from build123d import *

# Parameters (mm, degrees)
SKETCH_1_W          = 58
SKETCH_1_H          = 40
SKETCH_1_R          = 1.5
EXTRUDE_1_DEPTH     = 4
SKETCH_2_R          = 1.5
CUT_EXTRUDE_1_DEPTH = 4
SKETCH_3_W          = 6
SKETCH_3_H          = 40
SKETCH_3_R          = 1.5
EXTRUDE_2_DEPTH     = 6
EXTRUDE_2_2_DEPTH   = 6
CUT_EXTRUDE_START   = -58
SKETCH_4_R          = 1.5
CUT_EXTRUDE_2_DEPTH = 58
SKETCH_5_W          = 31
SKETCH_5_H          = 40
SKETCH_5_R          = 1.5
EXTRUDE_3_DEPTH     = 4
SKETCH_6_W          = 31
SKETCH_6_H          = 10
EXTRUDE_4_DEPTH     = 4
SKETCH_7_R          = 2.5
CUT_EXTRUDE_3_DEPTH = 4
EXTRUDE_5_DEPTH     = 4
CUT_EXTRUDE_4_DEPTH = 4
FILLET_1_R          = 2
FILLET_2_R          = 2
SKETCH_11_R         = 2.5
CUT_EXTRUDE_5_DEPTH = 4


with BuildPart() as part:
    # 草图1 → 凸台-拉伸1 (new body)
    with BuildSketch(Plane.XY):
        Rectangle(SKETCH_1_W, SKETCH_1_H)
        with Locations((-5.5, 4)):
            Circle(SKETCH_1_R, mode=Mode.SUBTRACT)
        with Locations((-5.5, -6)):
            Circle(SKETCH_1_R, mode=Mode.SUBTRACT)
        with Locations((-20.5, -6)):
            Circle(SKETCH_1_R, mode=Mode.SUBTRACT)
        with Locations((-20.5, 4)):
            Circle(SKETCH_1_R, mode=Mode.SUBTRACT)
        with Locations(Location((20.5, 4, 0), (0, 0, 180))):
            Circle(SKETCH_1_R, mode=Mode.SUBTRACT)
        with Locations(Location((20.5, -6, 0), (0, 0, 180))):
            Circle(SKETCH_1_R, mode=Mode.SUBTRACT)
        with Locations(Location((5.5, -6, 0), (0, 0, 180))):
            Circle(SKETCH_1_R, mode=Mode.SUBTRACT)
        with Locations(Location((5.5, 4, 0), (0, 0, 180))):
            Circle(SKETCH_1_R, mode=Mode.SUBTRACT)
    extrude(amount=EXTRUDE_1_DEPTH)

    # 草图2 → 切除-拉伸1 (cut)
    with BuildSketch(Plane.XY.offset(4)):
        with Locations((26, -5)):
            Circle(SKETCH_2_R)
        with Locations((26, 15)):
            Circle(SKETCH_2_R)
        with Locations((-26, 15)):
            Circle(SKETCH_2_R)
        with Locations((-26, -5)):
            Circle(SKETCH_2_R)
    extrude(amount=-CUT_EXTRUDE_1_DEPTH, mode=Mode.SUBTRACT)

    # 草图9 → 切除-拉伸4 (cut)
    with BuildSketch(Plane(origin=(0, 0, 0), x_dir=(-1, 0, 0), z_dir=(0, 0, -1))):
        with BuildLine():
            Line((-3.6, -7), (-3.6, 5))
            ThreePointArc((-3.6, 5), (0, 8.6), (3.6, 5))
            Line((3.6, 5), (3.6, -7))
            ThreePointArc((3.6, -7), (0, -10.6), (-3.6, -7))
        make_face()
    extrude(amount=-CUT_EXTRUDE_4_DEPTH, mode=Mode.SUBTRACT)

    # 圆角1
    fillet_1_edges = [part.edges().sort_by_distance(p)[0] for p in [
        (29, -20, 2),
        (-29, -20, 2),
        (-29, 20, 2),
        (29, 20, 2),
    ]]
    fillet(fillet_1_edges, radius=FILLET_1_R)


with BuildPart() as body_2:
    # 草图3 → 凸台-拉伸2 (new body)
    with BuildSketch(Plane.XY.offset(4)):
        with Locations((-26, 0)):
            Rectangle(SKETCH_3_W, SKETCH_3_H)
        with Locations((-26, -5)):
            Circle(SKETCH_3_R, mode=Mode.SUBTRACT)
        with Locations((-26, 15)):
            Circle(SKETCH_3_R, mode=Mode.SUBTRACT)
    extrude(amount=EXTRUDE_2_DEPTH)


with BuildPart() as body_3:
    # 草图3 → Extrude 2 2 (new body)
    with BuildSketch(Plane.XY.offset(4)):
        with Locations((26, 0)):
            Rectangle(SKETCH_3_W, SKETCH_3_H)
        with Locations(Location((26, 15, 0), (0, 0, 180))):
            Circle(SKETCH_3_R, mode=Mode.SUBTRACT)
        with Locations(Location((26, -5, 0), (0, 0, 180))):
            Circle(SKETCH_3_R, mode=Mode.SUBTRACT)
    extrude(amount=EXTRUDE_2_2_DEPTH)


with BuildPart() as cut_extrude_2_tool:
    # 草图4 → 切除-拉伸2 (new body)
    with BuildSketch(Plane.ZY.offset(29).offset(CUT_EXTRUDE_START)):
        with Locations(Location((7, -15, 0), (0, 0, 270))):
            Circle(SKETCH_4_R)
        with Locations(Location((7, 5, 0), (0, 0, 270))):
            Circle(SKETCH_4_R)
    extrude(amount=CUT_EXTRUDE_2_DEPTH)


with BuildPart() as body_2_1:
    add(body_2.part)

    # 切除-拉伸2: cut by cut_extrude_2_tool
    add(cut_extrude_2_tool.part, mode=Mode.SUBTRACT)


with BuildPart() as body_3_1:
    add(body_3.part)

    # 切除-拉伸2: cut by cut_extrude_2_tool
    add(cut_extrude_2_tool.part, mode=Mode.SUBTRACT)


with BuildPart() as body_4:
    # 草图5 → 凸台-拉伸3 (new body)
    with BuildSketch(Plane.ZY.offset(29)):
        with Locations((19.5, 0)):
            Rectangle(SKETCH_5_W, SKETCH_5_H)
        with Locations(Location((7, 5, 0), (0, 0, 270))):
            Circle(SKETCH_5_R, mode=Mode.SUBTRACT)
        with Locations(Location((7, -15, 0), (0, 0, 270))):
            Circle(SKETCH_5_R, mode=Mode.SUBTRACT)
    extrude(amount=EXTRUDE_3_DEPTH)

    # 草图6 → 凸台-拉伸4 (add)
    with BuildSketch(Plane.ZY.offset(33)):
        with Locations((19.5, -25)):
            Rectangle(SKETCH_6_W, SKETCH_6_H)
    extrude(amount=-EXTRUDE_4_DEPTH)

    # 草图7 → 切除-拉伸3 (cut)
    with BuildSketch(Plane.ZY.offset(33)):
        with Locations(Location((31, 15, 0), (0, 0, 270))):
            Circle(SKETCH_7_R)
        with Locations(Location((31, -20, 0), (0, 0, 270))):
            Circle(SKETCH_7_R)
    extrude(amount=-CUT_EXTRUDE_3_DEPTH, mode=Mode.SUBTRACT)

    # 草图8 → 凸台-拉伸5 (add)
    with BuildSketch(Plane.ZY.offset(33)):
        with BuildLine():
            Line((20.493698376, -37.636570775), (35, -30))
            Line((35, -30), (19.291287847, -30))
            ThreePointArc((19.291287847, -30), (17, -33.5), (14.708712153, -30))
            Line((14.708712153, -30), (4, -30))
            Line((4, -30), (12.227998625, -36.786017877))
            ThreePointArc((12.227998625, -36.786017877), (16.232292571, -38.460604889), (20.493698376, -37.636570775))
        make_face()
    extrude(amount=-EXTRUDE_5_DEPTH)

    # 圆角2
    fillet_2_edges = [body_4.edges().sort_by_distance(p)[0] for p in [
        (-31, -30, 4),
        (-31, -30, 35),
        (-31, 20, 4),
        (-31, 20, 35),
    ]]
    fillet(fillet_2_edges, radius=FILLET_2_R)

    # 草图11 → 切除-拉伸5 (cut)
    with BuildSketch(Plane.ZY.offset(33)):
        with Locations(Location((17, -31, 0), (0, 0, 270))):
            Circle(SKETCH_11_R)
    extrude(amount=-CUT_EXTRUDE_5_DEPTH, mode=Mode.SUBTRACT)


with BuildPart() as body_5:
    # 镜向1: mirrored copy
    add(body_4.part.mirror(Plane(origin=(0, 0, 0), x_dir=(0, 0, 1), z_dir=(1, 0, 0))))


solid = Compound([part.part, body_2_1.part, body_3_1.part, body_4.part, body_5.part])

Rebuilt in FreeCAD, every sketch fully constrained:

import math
import FreeCAD as App
import Part
import Sketcher


def edges_at(feature, points):
    """Names of the edges that pass closest to the given points."""
    edges = feature.Shape.Edges
    near = lambda p: min(range(len(edges)), key=lambda i: edges[i].distToShape(Part.Vertex(*p))[0])
    return sorted({f"Edge{near(p) + 1}" for p in points})


def add_polygon(sketch, points):
    """Adds a closed chain of lines whose ends are joined by coincident constraints."""
    first, n = sketch.GeometryCount, len(points)
    for a, b in zip(points, points[1:] + points[:1]):
        sketch.addGeometry(Part.LineSegment(App.Vector(*a, 0), App.Vector(*b, 0)), False)
    for i in range(n):
        sketch.addConstraint(Sketcher.Constraint("Coincident", first + i, 2, first + (i + 1) % n, 1))

doc = App.newDocument("Part")
body = doc.addObject("PartDesign::Body", "Body")

# Sketch on XY plane
sketch1 = body.newObject("Sketcher::SketchObject", "Sketch")
sketch1.AttachmentSupport = (doc.getObject("XY_Plane"), [""])
sketch1.MapMode = "FlatFace"
add_polygon(sketch1, [(-29, 20), (-29, -20), (29, -20), (29, 20)])  # lines 0-3
sketch1.addGeometry(Part.Circle(App.Vector(-20.5, -6, 0), App.Vector(0, 0, 1), 1.5), False)  # 4
sketch1.addGeometry(Part.Circle(App.Vector(-5.5, -6, 0), App.Vector(0, 0, 1), 1.5), False)  # 5
sketch1.addGeometry(Part.Circle(App.Vector(5.5, -6, 0), App.Vector(0, 0, 1), 1.5), False)  # 6
sketch1.addGeometry(Part.Circle(App.Vector(20.5, -6, 0), App.Vector(0, 0, 1), 1.5), False)  # 7
sketch1.addGeometry(Part.Circle(App.Vector(-20.5, 4, 0), App.Vector(0, 0, 1), 1.5), False)  # 8
sketch1.addGeometry(Part.Circle(App.Vector(-5.5, 4, 0), App.Vector(0, 0, 1), 1.5), False)  # 9
sketch1.addGeometry(Part.Circle(App.Vector(5.5, 4, 0), App.Vector(0, 0, 1), 1.5), False)  # 10
sketch1.addGeometry(Part.Circle(App.Vector(20.5, 4, 0), App.Vector(0, 0, 1), 1.5), False)  # 11
sketch1.addConstraint([
    Sketcher.Constraint("Vertical", 0),
    Sketcher.Constraint("Horizontal", 1),
    Sketcher.Constraint("Vertical", 2),
    Sketcher.Constraint("Horizontal", 3),
    Sketcher.Constraint("Equal", 4, 5),
    Sketcher.Constraint("Equal", 5, 6),
    Sketcher.Constraint("Equal", 6, 7),
    Sketcher.Constraint("Equal", 7, 8),
    Sketcher.Constraint("Equal", 8, 9),
    Sketcher.Constraint("Equal", 9, 10),
    Sketcher.Constraint("Equal", 10, 11),
    Sketcher.Constraint("Symmetric", 0, 2, 2, 2, -1, 1),
    Sketcher.Constraint("Symmetric", 5, 3, 6, 3, -2),
    Sketcher.Constraint("Symmetric", 4, 3, 7, 3, -2),
    Sketcher.Constraint("Symmetric", 9, 3, 10, 3, -2),
    Sketcher.Constraint("Symmetric", 8, 3, 11, 3, -2),
    Sketcher.Constraint("Horizontal", 4, 3, 5, 3),
    Sketcher.Constraint("Horizontal", 8, 3, 9, 3),
    Sketcher.Constraint("Vertical", 4, 3, 8, 3),
    Sketcher.Constraint("Vertical", 5, 3, 9, 3),
    Sketcher.Constraint("Diameter", 4, 3.0),
    Sketcher.Constraint("DistanceX", 1, 1, 1, 2, 58.0),
    Sketcher.Constraint("DistanceY", 0, 2, 0, 1, 40.0),
    Sketcher.Constraint("DistanceY", 4, 3, -1, 1, 6.0),
    Sketcher.Constraint("DistanceY", -1, 1, 8, 3, 4.0),
    Sketcher.Constraint("DistanceX", 4, 3, 5, 3, 15.0),
    Sketcher.Constraint("DistanceX", 5, 3, 6, 3, 11.0),
])
pad1 = body.newObject("PartDesign::Pad", "Pad")
pad1.Profile = sketch1
pad1.Length = 4

# Sketch on XY plane
sketch2 = body.newObject("Sketcher::SketchObject", "Sketch001")
sketch2.AttachmentSupport = (doc.getObject("XY_Plane"), [""])
sketch2.MapMode = "FlatFace"
sketch2.AttachmentOffset = App.Placement(App.Vector(0, 0, 4), App.Rotation())
sketch2.addGeometry([
    Part.Circle(App.Vector(26, -5, 0), App.Vector(0, 0, 1), 1.5),
    Part.Circle(App.Vector(26, 15, 0), App.Vector(0, 0, 1), 1.5),
    Part.Circle(App.Vector(-26, 15, 0), App.Vector(0, 0, 1), 1.5),
    Part.Circle(App.Vector(-26, -5, 0), App.Vector(0, 0, 1), 1.5),
], False)
sketch2.addConstraint([
    Sketcher.Constraint("Equal", 0, 1),
    Sketcher.Constraint("Equal", 1, 2),
    Sketcher.Constraint("Equal", 2, 3),
    Sketcher.Constraint("Symmetric", 1, 3, 2, 3, -2),
    Sketcher.Constraint("Symmetric", 0, 3, 3, 3, -2),
    Sketcher.Constraint("Vertical", 0, 3, 1, 3),
    Sketcher.Constraint("Diameter", 0, 3.0),
    Sketcher.Constraint("DistanceX", -1, 1, 0, 3, 26.0),
    Sketcher.Constraint("DistanceY", 0, 3, -1, 1, 5.0),
    Sketcher.Constraint("DistanceY", -1, 1, 1, 3, 15.0),
])
pocket1 = body.newObject("PartDesign::Pocket", "Pocket")
pocket1.Profile = sketch2
pocket1.Length = 4

# Sketch on XY plane
sketch3 = body.newObject("Sketcher::SketchObject", "Sketch002")
sketch3.AttachmentSupport = (doc.getObject("XY_Plane"), [""])
sketch3.MapMode = "FlatFace"
sketch3.addGeometry([
    Part.LineSegment(App.Vector(3.6, 5, 0), App.Vector(3.6, -7, 0)),
    Part.ArcOfCircle(Part.Circle(App.Vector(0, -7, 0), App.Vector(0, 0, 1), 3.6), math.radians(180), math.radians(360)),
    Part.LineSegment(App.Vector(-3.6, -7, 0), App.Vector(-3.6, 5, 0)),
    Part.ArcOfCircle(Part.Circle(App.Vector(0, 5, 0), App.Vector(0, 0, 1), 3.6), math.radians(0), math.radians(180)),
], False)
sketch3.addConstraint([
    Sketcher.Constraint("Tangent", 0, 2, 1, 2),
    Sketcher.Constraint("Tangent", 1, 1, 2, 1),
    Sketcher.Constraint("Tangent", 2, 2, 3, 2),
    Sketcher.Constraint("Tangent", 3, 1, 0, 1),
    Sketcher.Constraint("Vertical", 0),
    Sketcher.Constraint("Vertical", 2),
    Sketcher.Constraint("PointOnObject", 1, 3, -2),
    Sketcher.Constraint("Radius", 1, 3.6),
    Sketcher.Constraint("DistanceY", 0, 2, 0, 1, 12.0),
    Sketcher.Constraint("DistanceY", 1, 3, -1, 1, 7.0),
])
pocket2 = body.newObject("PartDesign::Pocket", "Pocket001")
pocket2.Profile = sketch3
pocket2.Length = 4
pocket2.Reversed = True
doc.recompute()

fillet = body.newObject("PartDesign::Fillet", "Fillet")
fillet.Base = (pocket2, edges_at(pocket2, [
    (29, -20, 2),
    (-29, -20, 2),
    (-29, 20, 2),
    (29, 20, 2),
]))
fillet.Radius = 2
body2 = doc.addObject("PartDesign::Body", "Body001")

# Sketch on XY plane
sketch4 = body2.newObject("Sketcher::SketchObject", "Sketch003")
sketch4.AttachmentSupport = (doc.getObject("XY_Plane001"), [""])
sketch4.MapMode = "FlatFace"
sketch4.AttachmentOffset = App.Placement(App.Vector(0, 0, 4), App.Rotation())
add_polygon(sketch4, [(-29, 20), (-29, -20), (-23, -20), (-23, 20)])  # lines 0-3
sketch4.addGeometry(Part.Circle(App.Vector(-26, -5, 0), App.Vector(0, 0, 1), 1.5), False)  # 4
sketch4.addGeometry(Part.Circle(App.Vector(-26, 15, 0), App.Vector(0, 0, 1), 1.5), False)  # 5
sketch4.addConstraint([
    Sketcher.Constraint("Vertical", 0),
    Sketcher.Constraint("Horizontal", 1),
    Sketcher.Constraint("Vertical", 2),
    Sketcher.Constraint("Horizontal", 3),
    Sketcher.Constraint("Equal", 4, 5),
    Sketcher.Constraint("Vertical", 4, 3, 5, 3),
    Sketcher.Constraint("Diameter", 4, 3.0),
    Sketcher.Constraint("DistanceX", 1, 1, 1, 2, 6.0),
    Sketcher.Constraint("DistanceY", 0, 2, 0, 1, 40.0),
    Sketcher.Constraint("DistanceX", 4, 3, -1, 1, 26.0),
    Sketcher.Constraint("DistanceY", 4, 3, -1, 1, 5.0),
    Sketcher.Constraint("DistanceY", -1, 1, 5, 3, 15.0),
    Sketcher.Constraint("DistanceX", 0, 2, -1, 1, 29.0),
    Sketcher.Constraint("DistanceY", 0, 2, -1, 1, 20.0),
])
pad2 = body2.newObject("PartDesign::Pad", "Pad001")
pad2.Profile = sketch4
pad2.Length = 6
body3 = doc.addObject("PartDesign::Body", "Body002")

# Sketch on XY plane
sketch5 = body3.newObject("Sketcher::SketchObject", "Sketch004")
sketch5.AttachmentSupport = (doc.getObject("XY_Plane002"), [""])
sketch5.MapMode = "FlatFace"
sketch5.AttachmentOffset = App.Placement(App.Vector(0, 0, 4), App.Rotation())
add_polygon(sketch5, [(23, 20), (23, -20), (29, -20), (29, 20)])  # lines 0-3
sketch5.addGeometry(Part.Circle(App.Vector(26, -5, 0), App.Vector(0, 0, 1), 1.5), False)  # 4
sketch5.addGeometry(Part.Circle(App.Vector(26, 15, 0), App.Vector(0, 0, 1), 1.5), False)  # 5
sketch5.addConstraint([
    Sketcher.Constraint("Vertical", 0),
    Sketcher.Constraint("Horizontal", 1),
    Sketcher.Constraint("Vertical", 2),
    Sketcher.Constraint("Horizontal", 3),
    Sketcher.Constraint("Equal", 4, 5),
    Sketcher.Constraint("Vertical", 4, 3, 5, 3),
    Sketcher.Constraint("Diameter", 4, 3.0),
    Sketcher.Constraint("DistanceX", 1, 1, 1, 2, 6.0),
    Sketcher.Constraint("DistanceY", 0, 2, 0, 1, 40.0),
    Sketcher.Constraint("DistanceX", -1, 1, 4, 3, 26.0),
    Sketcher.Constraint("DistanceY", 4, 3, -1, 1, 5.0),
    Sketcher.Constraint("DistanceY", -1, 1, 5, 3, 15.0),
    Sketcher.Constraint("DistanceX", -1, 1, 0, 2, 23.0),
    Sketcher.Constraint("DistanceY", 0, 2, -1, 1, 20.0),
])
pad3 = body3.newObject("PartDesign::Pad", "Pad002")
pad3.Profile = sketch5
pad3.Length = 6
body4 = doc.addObject("PartDesign::Body", "Body003")
body4.AllowCompound = True

# Sketch on YZ plane
sketch6 = body4.newObject("Sketcher::SketchObject", "Sketch005")
sketch6.AttachmentSupport = (doc.getObject("YZ_Plane003"), [""])
sketch6.MapMode = "FlatFace"
sketch6.AttachmentOffset = App.Placement(App.Vector(0, 0, 29), App.Rotation())
sketch6.addGeometry([
    Part.Circle(App.Vector(-15, 7, 0), App.Vector(0, 0, 1), 1.5),
    Part.Circle(App.Vector(5, 7, 0), App.Vector(0, 0, 1), 1.5),
], False)
sketch6.addConstraint([
    Sketcher.Constraint("Equal", 0, 1),
    Sketcher.Constraint("Horizontal", 0, 3, 1, 3),
    Sketcher.Constraint("Diameter", 0, 3.0),
    Sketcher.Constraint("DistanceX", 0, 3, -1, 1, 15.0),
    Sketcher.Constraint("DistanceY", -1, 1, 0, 3, 7.0),
    Sketcher.Constraint("DistanceX", -1, 1, 1, 3, 5.0),
])
pad4 = body4.newObject("PartDesign::Pad", "Pad003")
pad4.Profile = sketch6
pad4.Length = 58
pad4.Reversed = True
doc.recompute()

body5 = doc.addObject("PartDesign::Body", "Body004")
body5.BaseFeature = body4
boolean = body2.newObject("PartDesign::Boolean", "Boolean")
boolean.Type = "Cut"
boolean.addObjects([body5])
doc.recompute()

boolean2 = body3.newObject("PartDesign::Boolean", "Boolean001")
boolean2.Type = "Cut"
boolean2.addObjects([body4])
body6 = doc.addObject("PartDesign::Body", "Body005")

# Sketch on YZ plane
sketch7 = body6.newObject("Sketcher::SketchObject", "Sketch006")
sketch7.AttachmentSupport = (doc.getObject("YZ_Plane005"), [""])
sketch7.MapMode = "FlatFace"
sketch7.AttachmentOffset = App.Placement(App.Vector(0, 0, -29), App.Rotation())
add_polygon(sketch7, [(20, 4), (-20, 4), (-20, 35), (20, 35)])  # lines 0-3
sketch7.addGeometry(Part.Circle(App.Vector(-15, 7, 0), App.Vector(0, 0, 1), 1.5), False)  # 4
sketch7.addGeometry(Part.Circle(App.Vector(5, 7, 0), App.Vector(0, 0, 1), 1.5), False)  # 5
sketch7.addConstraint([
    Sketcher.Constraint("Horizontal", 0),
    Sketcher.Constraint("Vertical", 1),
    Sketcher.Constraint("Horizontal", 2),
    Sketcher.Constraint("Vertical", 3),
    Sketcher.Constraint("Equal", 4, 5),
    Sketcher.Constraint("Horizontal", 4, 3, 5, 3),
    Sketcher.Constraint("Diameter", 4, 3.0),
    Sketcher.Constraint("DistanceX", 0, 2, 0, 1, 40.0),
    Sketcher.Constraint("DistanceY", 1, 1, 1, 2, 31.0),
    Sketcher.Constraint("DistanceX", 4, 3, -1, 1, 15.0),
    Sketcher.Constraint("DistanceY", -1, 1, 4, 3, 7.0),
    Sketcher.Constraint("DistanceX", -1, 1, 5, 3, 5.0),
    Sketcher.Constraint("DistanceX", 0, 2, -1, 1, 20.0),
    Sketcher.Constraint("DistanceY", -1, 1, 0, 2, 4.0),
])
pad5 = body6.newObject("PartDesign::Pad", "Pad004")
pad5.Profile = sketch7
pad5.Length = 4
pad5.Reversed = True

# Sketch on YZ plane
sketch8 = body6.newObject("Sketcher::SketchObject", "Sketch007")
sketch8.AttachmentSupport = (doc.getObject("YZ_Plane005"), [""])
sketch8.MapMode = "FlatFace"
sketch8.AttachmentOffset = App.Placement(App.Vector(0, 0, -33), App.Rotation())
add_polygon(sketch8, [(-20, 4), (-30, 4), (-30, 35), (-20, 35)])  # lines 0-3
sketch8.addConstraint([
    Sketcher.Constraint("Horizontal", 0),
    Sketcher.Constraint("Vertical", 1),
    Sketcher.Constraint("Horizontal", 2),
    Sketcher.Constraint("Vertical", 3),
    Sketcher.Constraint("DistanceX", 0, 2, 0, 1, 10.0),
    Sketcher.Constraint("DistanceY", 1, 1, 1, 2, 31.0),
    Sketcher.Constraint("DistanceX", 0, 2, -1, 1, 30.0),
    Sketcher.Constraint("DistanceY", -1, 1, 0, 2, 4.0),
])
pad6 = body6.newObject("PartDesign::Pad", "Pad005")
pad6.Profile = sketch8
pad6.Length = 4

# Sketch on YZ plane
sketch9 = body6.newObject("Sketcher::SketchObject", "Sketch008")
sketch9.AttachmentSupport = (doc.getObject("YZ_Plane005"), [""])
sketch9.MapMode = "FlatFace"
sketch9.AttachmentOffset = App.Placement(App.Vector(0, 0, -33), App.Rotation())
sketch9.addGeometry([
    Part.Circle(App.Vector(15, 31, 0), App.Vector(0, 0, 1), 2.5),
    Part.Circle(App.Vector(-20, 31, 0), App.Vector(0, 0, 1), 2.5),
], False)
sketch9.addConstraint([
    Sketcher.Constraint("Equal", 0, 1),
    Sketcher.Constraint("Horizontal", 0, 3, 1, 3),
    Sketcher.Constraint("Diameter", 0, 5.0),
    Sketcher.Constraint("DistanceX", -1, 1, 0, 3, 15.0),
    Sketcher.Constraint("DistanceY", -1, 1, 0, 3, 31.0),
    Sketcher.Constraint("DistanceX", 1, 3, -1, 1, 20.0),
])
pocket3 = body6.newObject("PartDesign::Pocket", "Pocket002")
pocket3.Profile = sketch9
pocket3.Length = 4
pocket3.Reversed = True

# Sketch on YZ plane
sketch10 = body6.newObject("Sketcher::SketchObject", "Sketch009")
sketch10.AttachmentSupport = (doc.getObject("YZ_Plane005"), [""])
sketch10.MapMode = "FlatFace"
sketch10.AttachmentOffset = App.Placement(App.Vector(0, 0, -33), App.Rotation())
sketch10.addGeometry([
    Part.LineSegment(App.Vector(-37.636571, 20.493698, 0), App.Vector(-30, 35, 0)),  # 0
    Part.LineSegment(App.Vector(-30, 35, 0), App.Vector(-30, 19.291288, 0)),  # 1
    Part.ArcOfCircle(Part.Circle(App.Vector(-31, 17, 0), App.Vector(0, 0, 1), 2.5), math.radians(66.421822), math.radians(293.578178)),  # 2
    Part.LineSegment(App.Vector(-30, 14.708712, 0), App.Vector(-30, 4, 0)),  # 3
    Part.LineSegment(App.Vector(-30, 4, 0), App.Vector(-36.786018, 12.227999, 0)),  # 4
    Part.ArcOfCircle(Part.Circle(App.Vector(-31, 17, 0), App.Vector(0, 0, 1), 7.5), math.radians(152.236278), math.radians(219.514008)),  # 5
], False)
sketch10.addConstraint([
    Sketcher.Constraint("Coincident", 0, 2, 1, 1),
    Sketcher.Constraint("Coincident", 1, 2, 2, 1),
    Sketcher.Constraint("Coincident", 2, 2, 3, 1),
    Sketcher.Constraint("Coincident", 3, 2, 4, 1),
    Sketcher.Constraint("Tangent", 4, 2, 5, 2),
    Sketcher.Constraint("Tangent", 5, 1, 0, 1),
    Sketcher.Constraint("Vertical", 1),
    Sketcher.Constraint("Vertical", 3),
    Sketcher.Constraint("Coincident", 5, 3, 2, 3),
    Sketcher.Constraint("Vertical", 1, 2, 2, 2),
    Sketcher.Constraint("Radius", 2, 2.5),
    Sketcher.Constraint("Radius", 5, 7.5),
    Sketcher.Constraint("DistanceX", 2, 3, -1, 1, 31.0),
    Sketcher.Constraint("DistanceY", -1, 1, 2, 3, 17.0),
    Sketcher.Constraint("DistanceX", 0, 2, -1, 1, 30.0),
    Sketcher.Constraint("DistanceY", -1, 1, 0, 2, 35.0),
    Sketcher.Constraint("DistanceY", -1, 1, 3, 2, 4.0),
])
pad7 = body6.newObject("PartDesign::Pad", "Pad006")
pad7.Profile = sketch10
pad7.Length = 4
doc.recompute()

fillet2 = body6.newObject("PartDesign::Fillet", "Fillet001")
fillet2.Base = (pad7, edges_at(pad7, [
    (-31, -30, 4),
    (-31, -30, 35),
    (-31, 20, 4),
    (-31, 20, 35),
]))
fillet2.Radius = 2

# Sketch on YZ plane
sketch11 = body6.newObject("Sketcher::SketchObject", "Sketch010")
sketch11.AttachmentSupport = (doc.getObject("YZ_Plane005"), [""])
sketch11.MapMode = "FlatFace"
sketch11.AttachmentOffset = App.Placement(App.Vector(0, 0, -33), App.Rotation())
sketch11.addGeometry(Part.Circle(App.Vector(-31, 17, 0), App.Vector(0, 0, 1), 2.5), False)
sketch11.addConstraint([
    Sketcher.Constraint("Diameter", 0, 5.0),
    Sketcher.Constraint("DistanceX", 0, 3, -1, 1, 31.0),
    Sketcher.Constraint("DistanceY", -1, 1, 0, 3, 17.0),
])
pocket4 = body6.newObject("PartDesign::Pocket", "Pocket003")
pocket4.Profile = sketch11
pocket4.Length = 4
pocket4.Reversed = True
body7 = doc.addObject("PartDesign::Body", "Body006")
doc.recompute()

mirroring = doc.addObject("Part::Mirroring", "Mirroring")
mirroring.Source = body6
mirroring.Base = App.Vector(0, 0, 0)
mirroring.Normal = App.Vector(1, 0, 0)
body7.BaseFeature = mirroring
doc.recompute()
mirroring.Visibility = False

doc.recompute()
